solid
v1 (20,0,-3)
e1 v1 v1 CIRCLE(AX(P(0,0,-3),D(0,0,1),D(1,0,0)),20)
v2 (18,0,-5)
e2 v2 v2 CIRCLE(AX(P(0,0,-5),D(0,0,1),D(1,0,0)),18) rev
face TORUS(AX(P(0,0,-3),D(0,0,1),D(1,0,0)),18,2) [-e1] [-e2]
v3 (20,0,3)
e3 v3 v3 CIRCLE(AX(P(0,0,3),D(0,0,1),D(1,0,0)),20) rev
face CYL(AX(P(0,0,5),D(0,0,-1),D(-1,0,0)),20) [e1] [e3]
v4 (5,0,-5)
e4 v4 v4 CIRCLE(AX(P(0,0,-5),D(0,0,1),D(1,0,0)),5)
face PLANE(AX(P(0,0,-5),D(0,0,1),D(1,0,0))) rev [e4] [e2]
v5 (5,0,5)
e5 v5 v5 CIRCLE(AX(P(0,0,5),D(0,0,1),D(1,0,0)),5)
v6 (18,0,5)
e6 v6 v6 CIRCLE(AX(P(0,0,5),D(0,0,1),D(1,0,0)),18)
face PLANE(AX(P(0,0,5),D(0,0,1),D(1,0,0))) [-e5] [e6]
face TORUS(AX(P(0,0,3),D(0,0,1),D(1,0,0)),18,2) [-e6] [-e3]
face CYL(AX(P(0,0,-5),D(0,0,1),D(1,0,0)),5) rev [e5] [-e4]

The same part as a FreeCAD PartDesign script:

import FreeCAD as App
import Part
import Sketcher
Q = App.Units.Quantity


def edges_at(feature, points):
    """Names of the edges that pass closest to the given points."""
    edges = feature.Shape.Edges
    near = lambda p: min(range(len(edges)), key=lambda i: edges[i].distToShape(Part.Vertex(*p))[0])
    return sorted({f"Edge{near(p) + 1}" for p in points})

doc = App.newDocument("Part")
body = doc.addObject("PartDesign::Body", "Body")

# Sketch on XY plane
sketch1 = doc.addObject("Sketcher::SketchObject", "Sketch")
body.addObject(sketch1)
sketch1.AttachmentSupport = (doc.XY_Plane, [""])
sketch1.MapMode = "FlatFace"
sketch1.addGeometry(Part.Circle(App.Vector(0, 0, 0), App.Vector(0, 0, 1), 20), False)
sketch1.addConstraint([
    Sketcher.Constraint("Coincident", 0, 3, -1, 1),
    Sketcher.Constraint("Diameter", 0, Q("40 mm")),
])
pad1 = doc.addObject("PartDesign::Pad", "Pad")
body.addObject(pad1)
pad1.Profile = sketch1
pad1.Length = 10
pad1.Midplane = True

# Sketch on XY plane
sketch2 = doc.addObject("Sketcher::SketchObject", "Sketch001")
body.addObject(sketch2)
sketch2.AttachmentSupport = (doc.XY_Plane, [""])
sketch2.MapMode = "FlatFace"
sketch2.addGeometry(Part.Circle(App.Vector(0, 0, 0), App.Vector(0, 0, 1), 5), False)
sketch2.addConstraint([
    Sketcher.Constraint("Coincident", 0, 3, -1, 1),
    Sketcher.Constraint("Diameter", 0, Q("10 mm")),
])
pocket1 = doc.addObject("PartDesign::Pocket", "Pocket")
body.addObject(pocket1)
pocket1.Profile = sketch2
pocket1.Length = 10
pocket1.Midplane = True
doc.recompute()

fillet = doc.addObject("PartDesign::Fillet", "Fillet")
body.addObject(fillet)
fillet.Base = (pocket1, edges_at(pocket1, [(-20, 0, -5), (-20, 0, 5)]))
fillet.Radius = 2

doc.recompute()
